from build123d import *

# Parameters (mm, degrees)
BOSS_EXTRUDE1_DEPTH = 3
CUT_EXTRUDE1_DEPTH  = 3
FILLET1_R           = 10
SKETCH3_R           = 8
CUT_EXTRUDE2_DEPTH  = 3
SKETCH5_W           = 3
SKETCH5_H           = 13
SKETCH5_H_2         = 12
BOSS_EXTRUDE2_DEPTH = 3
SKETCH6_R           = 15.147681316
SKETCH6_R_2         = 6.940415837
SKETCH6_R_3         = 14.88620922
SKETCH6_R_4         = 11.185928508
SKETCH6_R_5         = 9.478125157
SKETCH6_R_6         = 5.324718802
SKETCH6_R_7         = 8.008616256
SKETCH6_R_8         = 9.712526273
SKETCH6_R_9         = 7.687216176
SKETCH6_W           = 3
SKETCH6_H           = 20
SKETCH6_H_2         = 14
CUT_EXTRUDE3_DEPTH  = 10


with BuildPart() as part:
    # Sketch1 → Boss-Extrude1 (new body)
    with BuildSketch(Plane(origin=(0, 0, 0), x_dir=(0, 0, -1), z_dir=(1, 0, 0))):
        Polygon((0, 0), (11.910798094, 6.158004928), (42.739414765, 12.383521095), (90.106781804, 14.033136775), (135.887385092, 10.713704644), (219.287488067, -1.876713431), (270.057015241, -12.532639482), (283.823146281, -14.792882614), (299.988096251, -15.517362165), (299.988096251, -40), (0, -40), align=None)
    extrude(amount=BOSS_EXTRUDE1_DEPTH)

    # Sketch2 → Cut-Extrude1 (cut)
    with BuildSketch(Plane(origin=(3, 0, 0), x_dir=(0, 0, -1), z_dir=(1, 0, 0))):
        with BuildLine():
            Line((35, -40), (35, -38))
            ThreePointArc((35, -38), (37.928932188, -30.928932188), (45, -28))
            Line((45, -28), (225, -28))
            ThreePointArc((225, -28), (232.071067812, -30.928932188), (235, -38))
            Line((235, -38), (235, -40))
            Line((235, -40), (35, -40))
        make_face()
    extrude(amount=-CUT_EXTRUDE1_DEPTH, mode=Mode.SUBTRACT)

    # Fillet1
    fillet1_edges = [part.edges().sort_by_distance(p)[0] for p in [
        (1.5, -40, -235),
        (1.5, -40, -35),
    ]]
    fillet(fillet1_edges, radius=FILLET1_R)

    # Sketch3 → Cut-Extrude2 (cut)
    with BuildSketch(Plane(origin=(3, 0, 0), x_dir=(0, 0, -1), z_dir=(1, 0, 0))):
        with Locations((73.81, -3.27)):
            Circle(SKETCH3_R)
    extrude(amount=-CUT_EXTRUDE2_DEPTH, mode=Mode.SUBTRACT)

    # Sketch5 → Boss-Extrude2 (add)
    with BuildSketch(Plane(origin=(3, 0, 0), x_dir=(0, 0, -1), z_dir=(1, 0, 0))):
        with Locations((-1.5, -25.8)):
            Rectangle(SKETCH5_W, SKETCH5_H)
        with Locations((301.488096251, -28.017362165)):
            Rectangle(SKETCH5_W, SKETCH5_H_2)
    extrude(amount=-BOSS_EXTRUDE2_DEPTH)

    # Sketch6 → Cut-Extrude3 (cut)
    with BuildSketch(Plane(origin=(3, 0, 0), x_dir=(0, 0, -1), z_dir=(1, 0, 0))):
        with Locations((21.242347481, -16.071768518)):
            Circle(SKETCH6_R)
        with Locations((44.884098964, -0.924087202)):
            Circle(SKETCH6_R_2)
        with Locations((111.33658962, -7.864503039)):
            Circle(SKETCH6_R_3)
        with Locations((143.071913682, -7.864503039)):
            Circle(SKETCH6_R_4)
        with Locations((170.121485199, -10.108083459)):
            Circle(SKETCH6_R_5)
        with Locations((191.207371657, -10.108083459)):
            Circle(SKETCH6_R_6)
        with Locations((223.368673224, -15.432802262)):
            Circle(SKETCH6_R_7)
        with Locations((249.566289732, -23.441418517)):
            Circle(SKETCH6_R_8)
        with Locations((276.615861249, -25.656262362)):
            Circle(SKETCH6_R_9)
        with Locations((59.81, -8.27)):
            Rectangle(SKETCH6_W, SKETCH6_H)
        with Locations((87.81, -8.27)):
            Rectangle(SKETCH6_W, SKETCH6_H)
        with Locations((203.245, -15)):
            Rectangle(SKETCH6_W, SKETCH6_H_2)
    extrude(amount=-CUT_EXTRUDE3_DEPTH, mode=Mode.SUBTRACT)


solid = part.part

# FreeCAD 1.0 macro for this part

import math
import FreeCAD as App
import Part
import Sketcher

V = App.Vector
Q = App.Units.Quantity


def edges_at(feature, points):
    """Names of the edges that pass closest to the given points."""
    edges = feature.Shape.Edges
    near = lambda p: min(range(len(edges)), key=lambda i: edges[i].distToShape(Part.Vertex(*p))[0])
    return sorted({f"Edge{near(p) + 1}" for p in points})


def add_polygon(sketch, points):
    """Adds a closed chain of lines whose ends are joined by coincident constraints."""
    first, n = sketch.GeometryCount, len(points)
    for a, b in zip(points, points[1:] + points[:1]):
        sketch.addGeometry(Part.LineSegment(App.Vector(*a, 0), App.Vector(*b, 0)), False)
    for i in range(n):
        sketch.addConstraint(Sketcher.Constraint("Coincident", first + i, 2, first + (i + 1) % n, 1))

doc = App.newDocument("Part")
body = doc.addObject("PartDesign::Body", "Body")

sketch1 = body.newObject("Sketcher::SketchObject", "Sketch")
sketch1.AttachmentSupport = (doc.getObject("YZ_Plane"), [""])
sketch1.MapMode = "FlatFace"
add_polygon(sketch1, [(6, -12), (0, 0), (-40, 0), (-40, -300), (-16, -300), (-15, -284), (-13, -270), (-2, -219), (11, -136), (14, -90), (12, -43)])
sketch1.addConstraint([
    Sketcher.Constraint("Horizontal", 1),
    Sketcher.Constraint("Vertical", 2),
    Sketcher.Constraint("Horizontal", 3),
    Sketcher.Constraint("Coincident", 0, 2, -1, 1),
    Sketcher.Constraint("DistanceX", 1, 2, 1, 1, Q("40 mm")),
    Sketcher.Constraint("Distance", 7, Q("84.345099 mm")),
    Sketcher.Constraint("DistanceY", 10, 2, -1, 1, Q("11.910798 mm")),
    Sketcher.Constraint("DistanceX", 10, 2, 7, 2, Q("4.5557 mm")),
    Sketcher.Constraint("Distance", 0, Q("13.40851 mm")),
    Sketcher.Constraint("Distance", 5, Q("13.95045 mm")),
    Sketcher.Constraint("DistanceX", 3, 1, 3, 2, Q("24.482638 mm")),
    Sketcher.Constraint("DistanceY", 2, 2, 2, 1, Q("299.988096 mm")),
    Sketcher.Constraint("DistanceX", 5, 2, -1, 1, Q("12.532639 mm")),
    Sketcher.Constraint("DistanceY", 6, 2, -1, 1, Q("219.287488 mm")),
    Sketcher.Constraint("DistanceY", 8, 2, -1, 1, Q("90.106782 mm")),
    Sketcher.Constraint("DistanceX", -1, 1, 9, 2, Q("12.383521 mm")),
    Sketcher.Constraint("DistanceX", 3, 2, 4, 2, Q("0.72448 mm")),
    Sketcher.Constraint("DistanceY", 3, 2, 4, 2, Q("16.16495 mm")),
    Sketcher.Constraint("DistanceX", 4, 2, 6, 2, Q("12.916169 mm")),
    Sketcher.Constraint("DistanceX", 6, 2, 8, 2, Q("15.90985 mm")),
    Sketcher.Constraint("DistanceY", 7, 2, 9, 2, Q("93.14797 mm")),
])
pad1 = body.newObject("PartDesign::Pad", "Pad")
pad1.Profile = sketch1
pad1.Length = 3

sketch2 = body.newObject("Sketcher::SketchObject", "Sketch001")
sketch2.AttachmentSupport = (doc.getObject("YZ_Plane"), [""])
sketch2.MapMode = "FlatFace"
sketch2.AttachmentOffset = App.Placement(V(0, 0, 3), App.Rotation())
sketch2.addGeometry([
    Part.LineSegment(V(-38, -35, 0), V(-40, -35, 0)),
    Part.LineSegment(V(-40, -35, 0), V(-40, -235, 0)),
    Part.LineSegment(V(-40, -235, 0), V(-38, -235, 0)),
    Part.ArcOfCircle(Part.Circle(V(-38, -225, 0), V(0, 0, 1), 10), math.radians(-90), math.radians(0)),
    Part.LineSegment(V(-28, -225, 0), V(-28, -45, 0)),
    Part.ArcOfCircle(Part.Circle(V(-38, -45, 0), V(0, 0, 1), 10), math.radians(0), math.radians(90)),
], False)
sketch2.addConstraint([
    Sketcher.Constraint("Coincident", 0, 2, 1, 1),
    Sketcher.Constraint("Coincident", 1, 2, 2, 1),
    Sketcher.Constraint("Tangent", 2, 2, 3, 1),
    Sketcher.Constraint("Tangent", 3, 2, 4, 1),
    Sketcher.Constraint("Tangent", 4, 2, 5, 1),
    Sketcher.Constraint("Tangent", 5, 2, 0, 1),
    Sketcher.Constraint("Horizontal", 0),
    Sketcher.Constraint("Vertical", 1),
    Sketcher.Constraint("Horizontal", 2),
    Sketcher.Constraint("Vertical", 4),
    Sketcher.Constraint("Equal", 3, 5),
    Sketcher.Constraint("Radius", 3, Q("10 mm")),
    Sketcher.Constraint("DistanceX", 0, 2, 0, 1, Q("2 mm")),
    Sketcher.Constraint("DistanceY", 1, 2, 1, 1, Q("200 mm")),
    Sketcher.Constraint("DistanceX", 3, 3, -1, 1, Q("38 mm")),
    Sketcher.Constraint("DistanceY", 3, 3, -1, 1, Q("225 mm")),
])
pocket1 = body.newObject("PartDesign::Pocket", "Pocket")
pocket1.Profile = sketch2
pocket1.Length = 3
doc.recompute()

fillet = body.newObject("PartDesign::Fillet", "Fillet")
fillet.Base = (pocket1, edges_at(pocket1, [(1.5, -40, -235), (1.5, -40, -35)]))
fillet.Radius = 10

sketch3 = body.newObject("Sketcher::SketchObject", "Sketch002")
sketch3.AttachmentSupport = (doc.getObject("YZ_Plane"), [""])
sketch3.MapMode = "FlatFace"
sketch3.AttachmentOffset = App.Placement(V(0, 0, 3), App.Rotation())
sketch3.addGeometry(Part.Circle(V(-3, -74, 0), V(0, 0, 1), 8), False)
sketch3.addConstraint([
    Sketcher.Constraint("Diameter", 0, Q("16 mm")),
    Sketcher.Constraint("DistanceX", 0, 3, -1, 1, Q("3.27 mm")),
    Sketcher.Constraint("DistanceY", 0, 3, -1, 1, Q("73.81 mm")),
])
pocket2 = body.newObject("PartDesign::Pocket", "Pocket001")
pocket2.Profile = sketch3
pocket2.Length = 3

sketch4 = body.newObject("Sketcher::SketchObject", "Sketch003")
sketch4.AttachmentSupport = (doc.getObject("YZ_Plane"), [""])
sketch4.MapMode = "FlatFace"
sketch4.AttachmentOffset = App.Placement(V(0, 0, 3), App.Rotation())
add_polygon(sketch4, [(-19.3, 3), (-32.3, 3), (-32.3, 0), (-19.3, 0)])
add_polygon(sketch4, [(-22, -300), (-34, -300), (-34, -303), (-22, -303)])
sketch4.addConstraint([
    Sketcher.Constraint("Horizontal", 0),
    Sketcher.Constraint("Vertical", 1),
    Sketcher.Constraint("Horizontal", 2),
    Sketcher.Constraint("Vertical", 3),
    Sketcher.Constraint("Horizontal", 4),
    Sketcher.Constraint("Vertical", 5),
    Sketcher.Constraint("Horizontal", 6),
    Sketcher.Constraint("Vertical", 7),
    Sketcher.Constraint("PointOnObject", 1, 2, -1),
    Sketcher.Constraint("Equal", 3, 5),
    Sketcher.Constraint("DistanceX", 0, 2, 0, 1, Q("13 mm")),
    Sketcher.Constraint("DistanceX", 4, 2, 4, 1, Q("12 mm")),
    Sketcher.Constraint("DistanceY", 1, 2, 1, 1, Q("3 mm")),
    Sketcher.Constraint("DistanceX", 0, 2, -1, 1, Q("32.3 mm")),
    Sketcher.Constraint("DistanceX", 4, 2, -1, 1, Q("34.017362 mm")),
    Sketcher.Constraint("DistanceY", 4, 2, -1, 1, Q("299.988096 mm")),
])
pad2 = body.newObject("PartDesign::Pad", "Pad001")
pad2.Profile = sketch4
pad2.Length = 3
pad2.Reversed = True

sketch5 = body.newObject("Sketcher::SketchObject", "Sketch004")
sketch5.AttachmentSupport = (doc.getObject("YZ_Plane"), [""])
sketch5.MapMode = "FlatFace"
sketch5.AttachmentOffset = App.Placement(V(0, 0, 3), App.Rotation())
sketch5.addGeometry(Part.Circle(V(-16.1, -21.2, 0), V(0, 0, 1), 15.1), False)
sketch5.addGeometry(Part.Circle(V(-0.9, -44.9, 0), V(0, 0, 1), 6.9), False)
sketch5.addGeometry(Part.Circle(V(-7.9, -111.3, 0), V(0, 0, 1), 14.9), False)
sketch5.addGeometry(Part.Circle(V(-7.9, -143.1, 0), V(0, 0, 1), 11.2), False)
sketch5.addGeometry(Part.Circle(V(-10.1, -170.1, 0), V(0, 0, 1), 9.5), False)
sketch5.addGeometry(Part.Circle(V(-10.1, -191.2, 0), V(0, 0, 1), 5.3), False)
sketch5.addGeometry(Part.Circle(V(-15.4, -223.4, 0), V(0, 0, 1), 8), False)
sketch5.addGeometry(Part.Circle(V(-23.4, -249.6, 0), V(0, 0, 1), 9.7), False)
sketch5.addGeometry(Part.Circle(V(-25.7, -276.6, 0), V(0, 0, 1), 7.7), False)
add_polygon(sketch5, [(1.7, -58.3), (-18.3, -58.3), (-18.3, -61.3), (1.7, -61.3)])
add_polygon(sketch5, [(1.7, -86.3), (-18.3, -86.3), (-18.3, -89.3), (1.7, -89.3)])
add_polygon(sketch5, [(-8, -201.7), (-22, -201.7), (-22, -204.7), (-8, -204.7)])
sketch5.addConstraint([
    Sketcher.Constraint("Horizontal", 9),
    Sketcher.Constraint("Vertical", 10),
    Sketcher.Constraint("Horizontal", 11),
    Sketcher.Constraint("Vertical", 12),
    Sketcher.Constraint("Horizontal", 13),
    Sketcher.Constraint("Vertical", 14),
    Sketcher.Constraint("Horizontal", 15),
    Sketcher.Constraint("Vertical", 16),
    Sketcher.Constraint("Horizontal", 17),
    Sketcher.Constraint("Vertical", 18),
    Sketcher.Constraint("Horizontal", 19),
    Sketcher.Constraint("Vertical", 20),
    Sketcher.Constraint("Vertical", 2, 3, 3, 3),
    Sketcher.Constraint("Vertical", 4, 3, 5, 3),
    Sketcher.Constraint("Vertical", 10, 2, 13, 2),
    Sketcher.Constraint("Vertical", 12, 2, 15, 2),
    Sketcher.Constraint("Equal", 12, 14),
    Sketcher.Constraint("Equal", 16, 18),
    Sketcher.Constraint("DistanceX", 9, 2, 9, 1, Q("20 mm")),
    Sketcher.Constraint("DistanceX", 17, 2, 17, 1, Q("14 mm")),
    Sketcher.Constraint("DistanceY", 10, 2, 10, 1, Q("3 mm")),
    Sketcher.Constraint("DistanceX", 17, 2, -1, 1, Q("22 mm")),
    Sketcher.Constraint("DistanceY", 13, 2, 10, 2, Q("25 mm")),
    Sketcher.Constraint("Diameter", 1, Q("13.880832 mm")),
    Sketcher.Constraint("Diameter", 2, Q("29.772418 mm")),
    Sketcher.Constraint("Diameter", 4, Q("18.95625 mm")),
    Sketcher.Constraint("DistanceX", 9, 2, -1, 1, Q("18.27 mm")),
    Sketcher.Constraint("DistanceY", 9, 2, -1, 1, Q("58.31 mm")),
    Sketcher.Constraint("Diameter", 0, Q("30.295363 mm")),
    Sketcher.Constraint("Diameter", 3, Q("22.371857 mm")),
    Sketcher.Constraint("Diameter", 5, Q("10.649438 mm")),
    Sketcher.Constraint("Diameter", 6, Q("16.017233 mm")),
    Sketcher.Constraint("Diameter", 7, Q("19.425053 mm")),
    Sketcher.Constraint("Diameter", 8, Q("15.374432 mm")),
    Sketcher.Constraint("DistanceY", 17, 2, -1, 1, Q("201.745 mm")),
    Sketcher.Constraint("DistanceY", 1, 3, -1, 1, Q("44.884099 mm")),
    Sketcher.Constraint("DistanceY", 6, 3, 5, 3, Q("32.161302 mm")),
    Sketcher.Constraint("DistanceX", 6, 3, 3, 3, Q("7.568299 mm")),
    Sketcher.Constraint("DistanceY", 7, 3, 2, 3, Q("138.2297 mm")),
    Sketcher.Constraint("DistanceX", 0, 3, -1, 1, Q("16.071769 mm")),
    Sketcher.Constraint("DistanceY", 2, 3, -1, 1, Q("111.33659 mm")),
    Sketcher.Constraint("DistanceY", 5, 3, -1, 1, Q("191.207372 mm")),
    Sketcher.Constraint("DistanceX", 7, 3, -1, 1, Q("23.441419 mm")),
    Sketcher.Constraint("DistanceY", 8, 3, -1, 1, Q("276.615861 mm")),
    Sketcher.Constraint("DistanceX", 0, 3, 1, 3, Q("15.147681 mm")),
    Sketcher.Constraint("DistanceY", 1, 3, 0, 3, Q("23.641751 mm")),
    Sketcher.Constraint("DistanceX", 4, 3, 3, 3, Q("2.24358 mm")),
    Sketcher.Constraint("DistanceY", 4, 3, 3, 3, Q("27.049572 mm")),
    Sketcher.Constraint("DistanceY", 6, 3, 4, 3, Q("53.247188 mm")),
    Sketcher.Constraint("DistanceX", 8, 3, 6, 3, Q("10.22346 mm")),
    Sketcher.Constraint("DistanceX", 2, 3, -1, 1, Q("7.864503 mm")),
])
pocket3 = body.newObject("PartDesign::Pocket", "Pocket002")
pocket3.Profile = sketch5
pocket3.Length = 10

doc.recompute()
